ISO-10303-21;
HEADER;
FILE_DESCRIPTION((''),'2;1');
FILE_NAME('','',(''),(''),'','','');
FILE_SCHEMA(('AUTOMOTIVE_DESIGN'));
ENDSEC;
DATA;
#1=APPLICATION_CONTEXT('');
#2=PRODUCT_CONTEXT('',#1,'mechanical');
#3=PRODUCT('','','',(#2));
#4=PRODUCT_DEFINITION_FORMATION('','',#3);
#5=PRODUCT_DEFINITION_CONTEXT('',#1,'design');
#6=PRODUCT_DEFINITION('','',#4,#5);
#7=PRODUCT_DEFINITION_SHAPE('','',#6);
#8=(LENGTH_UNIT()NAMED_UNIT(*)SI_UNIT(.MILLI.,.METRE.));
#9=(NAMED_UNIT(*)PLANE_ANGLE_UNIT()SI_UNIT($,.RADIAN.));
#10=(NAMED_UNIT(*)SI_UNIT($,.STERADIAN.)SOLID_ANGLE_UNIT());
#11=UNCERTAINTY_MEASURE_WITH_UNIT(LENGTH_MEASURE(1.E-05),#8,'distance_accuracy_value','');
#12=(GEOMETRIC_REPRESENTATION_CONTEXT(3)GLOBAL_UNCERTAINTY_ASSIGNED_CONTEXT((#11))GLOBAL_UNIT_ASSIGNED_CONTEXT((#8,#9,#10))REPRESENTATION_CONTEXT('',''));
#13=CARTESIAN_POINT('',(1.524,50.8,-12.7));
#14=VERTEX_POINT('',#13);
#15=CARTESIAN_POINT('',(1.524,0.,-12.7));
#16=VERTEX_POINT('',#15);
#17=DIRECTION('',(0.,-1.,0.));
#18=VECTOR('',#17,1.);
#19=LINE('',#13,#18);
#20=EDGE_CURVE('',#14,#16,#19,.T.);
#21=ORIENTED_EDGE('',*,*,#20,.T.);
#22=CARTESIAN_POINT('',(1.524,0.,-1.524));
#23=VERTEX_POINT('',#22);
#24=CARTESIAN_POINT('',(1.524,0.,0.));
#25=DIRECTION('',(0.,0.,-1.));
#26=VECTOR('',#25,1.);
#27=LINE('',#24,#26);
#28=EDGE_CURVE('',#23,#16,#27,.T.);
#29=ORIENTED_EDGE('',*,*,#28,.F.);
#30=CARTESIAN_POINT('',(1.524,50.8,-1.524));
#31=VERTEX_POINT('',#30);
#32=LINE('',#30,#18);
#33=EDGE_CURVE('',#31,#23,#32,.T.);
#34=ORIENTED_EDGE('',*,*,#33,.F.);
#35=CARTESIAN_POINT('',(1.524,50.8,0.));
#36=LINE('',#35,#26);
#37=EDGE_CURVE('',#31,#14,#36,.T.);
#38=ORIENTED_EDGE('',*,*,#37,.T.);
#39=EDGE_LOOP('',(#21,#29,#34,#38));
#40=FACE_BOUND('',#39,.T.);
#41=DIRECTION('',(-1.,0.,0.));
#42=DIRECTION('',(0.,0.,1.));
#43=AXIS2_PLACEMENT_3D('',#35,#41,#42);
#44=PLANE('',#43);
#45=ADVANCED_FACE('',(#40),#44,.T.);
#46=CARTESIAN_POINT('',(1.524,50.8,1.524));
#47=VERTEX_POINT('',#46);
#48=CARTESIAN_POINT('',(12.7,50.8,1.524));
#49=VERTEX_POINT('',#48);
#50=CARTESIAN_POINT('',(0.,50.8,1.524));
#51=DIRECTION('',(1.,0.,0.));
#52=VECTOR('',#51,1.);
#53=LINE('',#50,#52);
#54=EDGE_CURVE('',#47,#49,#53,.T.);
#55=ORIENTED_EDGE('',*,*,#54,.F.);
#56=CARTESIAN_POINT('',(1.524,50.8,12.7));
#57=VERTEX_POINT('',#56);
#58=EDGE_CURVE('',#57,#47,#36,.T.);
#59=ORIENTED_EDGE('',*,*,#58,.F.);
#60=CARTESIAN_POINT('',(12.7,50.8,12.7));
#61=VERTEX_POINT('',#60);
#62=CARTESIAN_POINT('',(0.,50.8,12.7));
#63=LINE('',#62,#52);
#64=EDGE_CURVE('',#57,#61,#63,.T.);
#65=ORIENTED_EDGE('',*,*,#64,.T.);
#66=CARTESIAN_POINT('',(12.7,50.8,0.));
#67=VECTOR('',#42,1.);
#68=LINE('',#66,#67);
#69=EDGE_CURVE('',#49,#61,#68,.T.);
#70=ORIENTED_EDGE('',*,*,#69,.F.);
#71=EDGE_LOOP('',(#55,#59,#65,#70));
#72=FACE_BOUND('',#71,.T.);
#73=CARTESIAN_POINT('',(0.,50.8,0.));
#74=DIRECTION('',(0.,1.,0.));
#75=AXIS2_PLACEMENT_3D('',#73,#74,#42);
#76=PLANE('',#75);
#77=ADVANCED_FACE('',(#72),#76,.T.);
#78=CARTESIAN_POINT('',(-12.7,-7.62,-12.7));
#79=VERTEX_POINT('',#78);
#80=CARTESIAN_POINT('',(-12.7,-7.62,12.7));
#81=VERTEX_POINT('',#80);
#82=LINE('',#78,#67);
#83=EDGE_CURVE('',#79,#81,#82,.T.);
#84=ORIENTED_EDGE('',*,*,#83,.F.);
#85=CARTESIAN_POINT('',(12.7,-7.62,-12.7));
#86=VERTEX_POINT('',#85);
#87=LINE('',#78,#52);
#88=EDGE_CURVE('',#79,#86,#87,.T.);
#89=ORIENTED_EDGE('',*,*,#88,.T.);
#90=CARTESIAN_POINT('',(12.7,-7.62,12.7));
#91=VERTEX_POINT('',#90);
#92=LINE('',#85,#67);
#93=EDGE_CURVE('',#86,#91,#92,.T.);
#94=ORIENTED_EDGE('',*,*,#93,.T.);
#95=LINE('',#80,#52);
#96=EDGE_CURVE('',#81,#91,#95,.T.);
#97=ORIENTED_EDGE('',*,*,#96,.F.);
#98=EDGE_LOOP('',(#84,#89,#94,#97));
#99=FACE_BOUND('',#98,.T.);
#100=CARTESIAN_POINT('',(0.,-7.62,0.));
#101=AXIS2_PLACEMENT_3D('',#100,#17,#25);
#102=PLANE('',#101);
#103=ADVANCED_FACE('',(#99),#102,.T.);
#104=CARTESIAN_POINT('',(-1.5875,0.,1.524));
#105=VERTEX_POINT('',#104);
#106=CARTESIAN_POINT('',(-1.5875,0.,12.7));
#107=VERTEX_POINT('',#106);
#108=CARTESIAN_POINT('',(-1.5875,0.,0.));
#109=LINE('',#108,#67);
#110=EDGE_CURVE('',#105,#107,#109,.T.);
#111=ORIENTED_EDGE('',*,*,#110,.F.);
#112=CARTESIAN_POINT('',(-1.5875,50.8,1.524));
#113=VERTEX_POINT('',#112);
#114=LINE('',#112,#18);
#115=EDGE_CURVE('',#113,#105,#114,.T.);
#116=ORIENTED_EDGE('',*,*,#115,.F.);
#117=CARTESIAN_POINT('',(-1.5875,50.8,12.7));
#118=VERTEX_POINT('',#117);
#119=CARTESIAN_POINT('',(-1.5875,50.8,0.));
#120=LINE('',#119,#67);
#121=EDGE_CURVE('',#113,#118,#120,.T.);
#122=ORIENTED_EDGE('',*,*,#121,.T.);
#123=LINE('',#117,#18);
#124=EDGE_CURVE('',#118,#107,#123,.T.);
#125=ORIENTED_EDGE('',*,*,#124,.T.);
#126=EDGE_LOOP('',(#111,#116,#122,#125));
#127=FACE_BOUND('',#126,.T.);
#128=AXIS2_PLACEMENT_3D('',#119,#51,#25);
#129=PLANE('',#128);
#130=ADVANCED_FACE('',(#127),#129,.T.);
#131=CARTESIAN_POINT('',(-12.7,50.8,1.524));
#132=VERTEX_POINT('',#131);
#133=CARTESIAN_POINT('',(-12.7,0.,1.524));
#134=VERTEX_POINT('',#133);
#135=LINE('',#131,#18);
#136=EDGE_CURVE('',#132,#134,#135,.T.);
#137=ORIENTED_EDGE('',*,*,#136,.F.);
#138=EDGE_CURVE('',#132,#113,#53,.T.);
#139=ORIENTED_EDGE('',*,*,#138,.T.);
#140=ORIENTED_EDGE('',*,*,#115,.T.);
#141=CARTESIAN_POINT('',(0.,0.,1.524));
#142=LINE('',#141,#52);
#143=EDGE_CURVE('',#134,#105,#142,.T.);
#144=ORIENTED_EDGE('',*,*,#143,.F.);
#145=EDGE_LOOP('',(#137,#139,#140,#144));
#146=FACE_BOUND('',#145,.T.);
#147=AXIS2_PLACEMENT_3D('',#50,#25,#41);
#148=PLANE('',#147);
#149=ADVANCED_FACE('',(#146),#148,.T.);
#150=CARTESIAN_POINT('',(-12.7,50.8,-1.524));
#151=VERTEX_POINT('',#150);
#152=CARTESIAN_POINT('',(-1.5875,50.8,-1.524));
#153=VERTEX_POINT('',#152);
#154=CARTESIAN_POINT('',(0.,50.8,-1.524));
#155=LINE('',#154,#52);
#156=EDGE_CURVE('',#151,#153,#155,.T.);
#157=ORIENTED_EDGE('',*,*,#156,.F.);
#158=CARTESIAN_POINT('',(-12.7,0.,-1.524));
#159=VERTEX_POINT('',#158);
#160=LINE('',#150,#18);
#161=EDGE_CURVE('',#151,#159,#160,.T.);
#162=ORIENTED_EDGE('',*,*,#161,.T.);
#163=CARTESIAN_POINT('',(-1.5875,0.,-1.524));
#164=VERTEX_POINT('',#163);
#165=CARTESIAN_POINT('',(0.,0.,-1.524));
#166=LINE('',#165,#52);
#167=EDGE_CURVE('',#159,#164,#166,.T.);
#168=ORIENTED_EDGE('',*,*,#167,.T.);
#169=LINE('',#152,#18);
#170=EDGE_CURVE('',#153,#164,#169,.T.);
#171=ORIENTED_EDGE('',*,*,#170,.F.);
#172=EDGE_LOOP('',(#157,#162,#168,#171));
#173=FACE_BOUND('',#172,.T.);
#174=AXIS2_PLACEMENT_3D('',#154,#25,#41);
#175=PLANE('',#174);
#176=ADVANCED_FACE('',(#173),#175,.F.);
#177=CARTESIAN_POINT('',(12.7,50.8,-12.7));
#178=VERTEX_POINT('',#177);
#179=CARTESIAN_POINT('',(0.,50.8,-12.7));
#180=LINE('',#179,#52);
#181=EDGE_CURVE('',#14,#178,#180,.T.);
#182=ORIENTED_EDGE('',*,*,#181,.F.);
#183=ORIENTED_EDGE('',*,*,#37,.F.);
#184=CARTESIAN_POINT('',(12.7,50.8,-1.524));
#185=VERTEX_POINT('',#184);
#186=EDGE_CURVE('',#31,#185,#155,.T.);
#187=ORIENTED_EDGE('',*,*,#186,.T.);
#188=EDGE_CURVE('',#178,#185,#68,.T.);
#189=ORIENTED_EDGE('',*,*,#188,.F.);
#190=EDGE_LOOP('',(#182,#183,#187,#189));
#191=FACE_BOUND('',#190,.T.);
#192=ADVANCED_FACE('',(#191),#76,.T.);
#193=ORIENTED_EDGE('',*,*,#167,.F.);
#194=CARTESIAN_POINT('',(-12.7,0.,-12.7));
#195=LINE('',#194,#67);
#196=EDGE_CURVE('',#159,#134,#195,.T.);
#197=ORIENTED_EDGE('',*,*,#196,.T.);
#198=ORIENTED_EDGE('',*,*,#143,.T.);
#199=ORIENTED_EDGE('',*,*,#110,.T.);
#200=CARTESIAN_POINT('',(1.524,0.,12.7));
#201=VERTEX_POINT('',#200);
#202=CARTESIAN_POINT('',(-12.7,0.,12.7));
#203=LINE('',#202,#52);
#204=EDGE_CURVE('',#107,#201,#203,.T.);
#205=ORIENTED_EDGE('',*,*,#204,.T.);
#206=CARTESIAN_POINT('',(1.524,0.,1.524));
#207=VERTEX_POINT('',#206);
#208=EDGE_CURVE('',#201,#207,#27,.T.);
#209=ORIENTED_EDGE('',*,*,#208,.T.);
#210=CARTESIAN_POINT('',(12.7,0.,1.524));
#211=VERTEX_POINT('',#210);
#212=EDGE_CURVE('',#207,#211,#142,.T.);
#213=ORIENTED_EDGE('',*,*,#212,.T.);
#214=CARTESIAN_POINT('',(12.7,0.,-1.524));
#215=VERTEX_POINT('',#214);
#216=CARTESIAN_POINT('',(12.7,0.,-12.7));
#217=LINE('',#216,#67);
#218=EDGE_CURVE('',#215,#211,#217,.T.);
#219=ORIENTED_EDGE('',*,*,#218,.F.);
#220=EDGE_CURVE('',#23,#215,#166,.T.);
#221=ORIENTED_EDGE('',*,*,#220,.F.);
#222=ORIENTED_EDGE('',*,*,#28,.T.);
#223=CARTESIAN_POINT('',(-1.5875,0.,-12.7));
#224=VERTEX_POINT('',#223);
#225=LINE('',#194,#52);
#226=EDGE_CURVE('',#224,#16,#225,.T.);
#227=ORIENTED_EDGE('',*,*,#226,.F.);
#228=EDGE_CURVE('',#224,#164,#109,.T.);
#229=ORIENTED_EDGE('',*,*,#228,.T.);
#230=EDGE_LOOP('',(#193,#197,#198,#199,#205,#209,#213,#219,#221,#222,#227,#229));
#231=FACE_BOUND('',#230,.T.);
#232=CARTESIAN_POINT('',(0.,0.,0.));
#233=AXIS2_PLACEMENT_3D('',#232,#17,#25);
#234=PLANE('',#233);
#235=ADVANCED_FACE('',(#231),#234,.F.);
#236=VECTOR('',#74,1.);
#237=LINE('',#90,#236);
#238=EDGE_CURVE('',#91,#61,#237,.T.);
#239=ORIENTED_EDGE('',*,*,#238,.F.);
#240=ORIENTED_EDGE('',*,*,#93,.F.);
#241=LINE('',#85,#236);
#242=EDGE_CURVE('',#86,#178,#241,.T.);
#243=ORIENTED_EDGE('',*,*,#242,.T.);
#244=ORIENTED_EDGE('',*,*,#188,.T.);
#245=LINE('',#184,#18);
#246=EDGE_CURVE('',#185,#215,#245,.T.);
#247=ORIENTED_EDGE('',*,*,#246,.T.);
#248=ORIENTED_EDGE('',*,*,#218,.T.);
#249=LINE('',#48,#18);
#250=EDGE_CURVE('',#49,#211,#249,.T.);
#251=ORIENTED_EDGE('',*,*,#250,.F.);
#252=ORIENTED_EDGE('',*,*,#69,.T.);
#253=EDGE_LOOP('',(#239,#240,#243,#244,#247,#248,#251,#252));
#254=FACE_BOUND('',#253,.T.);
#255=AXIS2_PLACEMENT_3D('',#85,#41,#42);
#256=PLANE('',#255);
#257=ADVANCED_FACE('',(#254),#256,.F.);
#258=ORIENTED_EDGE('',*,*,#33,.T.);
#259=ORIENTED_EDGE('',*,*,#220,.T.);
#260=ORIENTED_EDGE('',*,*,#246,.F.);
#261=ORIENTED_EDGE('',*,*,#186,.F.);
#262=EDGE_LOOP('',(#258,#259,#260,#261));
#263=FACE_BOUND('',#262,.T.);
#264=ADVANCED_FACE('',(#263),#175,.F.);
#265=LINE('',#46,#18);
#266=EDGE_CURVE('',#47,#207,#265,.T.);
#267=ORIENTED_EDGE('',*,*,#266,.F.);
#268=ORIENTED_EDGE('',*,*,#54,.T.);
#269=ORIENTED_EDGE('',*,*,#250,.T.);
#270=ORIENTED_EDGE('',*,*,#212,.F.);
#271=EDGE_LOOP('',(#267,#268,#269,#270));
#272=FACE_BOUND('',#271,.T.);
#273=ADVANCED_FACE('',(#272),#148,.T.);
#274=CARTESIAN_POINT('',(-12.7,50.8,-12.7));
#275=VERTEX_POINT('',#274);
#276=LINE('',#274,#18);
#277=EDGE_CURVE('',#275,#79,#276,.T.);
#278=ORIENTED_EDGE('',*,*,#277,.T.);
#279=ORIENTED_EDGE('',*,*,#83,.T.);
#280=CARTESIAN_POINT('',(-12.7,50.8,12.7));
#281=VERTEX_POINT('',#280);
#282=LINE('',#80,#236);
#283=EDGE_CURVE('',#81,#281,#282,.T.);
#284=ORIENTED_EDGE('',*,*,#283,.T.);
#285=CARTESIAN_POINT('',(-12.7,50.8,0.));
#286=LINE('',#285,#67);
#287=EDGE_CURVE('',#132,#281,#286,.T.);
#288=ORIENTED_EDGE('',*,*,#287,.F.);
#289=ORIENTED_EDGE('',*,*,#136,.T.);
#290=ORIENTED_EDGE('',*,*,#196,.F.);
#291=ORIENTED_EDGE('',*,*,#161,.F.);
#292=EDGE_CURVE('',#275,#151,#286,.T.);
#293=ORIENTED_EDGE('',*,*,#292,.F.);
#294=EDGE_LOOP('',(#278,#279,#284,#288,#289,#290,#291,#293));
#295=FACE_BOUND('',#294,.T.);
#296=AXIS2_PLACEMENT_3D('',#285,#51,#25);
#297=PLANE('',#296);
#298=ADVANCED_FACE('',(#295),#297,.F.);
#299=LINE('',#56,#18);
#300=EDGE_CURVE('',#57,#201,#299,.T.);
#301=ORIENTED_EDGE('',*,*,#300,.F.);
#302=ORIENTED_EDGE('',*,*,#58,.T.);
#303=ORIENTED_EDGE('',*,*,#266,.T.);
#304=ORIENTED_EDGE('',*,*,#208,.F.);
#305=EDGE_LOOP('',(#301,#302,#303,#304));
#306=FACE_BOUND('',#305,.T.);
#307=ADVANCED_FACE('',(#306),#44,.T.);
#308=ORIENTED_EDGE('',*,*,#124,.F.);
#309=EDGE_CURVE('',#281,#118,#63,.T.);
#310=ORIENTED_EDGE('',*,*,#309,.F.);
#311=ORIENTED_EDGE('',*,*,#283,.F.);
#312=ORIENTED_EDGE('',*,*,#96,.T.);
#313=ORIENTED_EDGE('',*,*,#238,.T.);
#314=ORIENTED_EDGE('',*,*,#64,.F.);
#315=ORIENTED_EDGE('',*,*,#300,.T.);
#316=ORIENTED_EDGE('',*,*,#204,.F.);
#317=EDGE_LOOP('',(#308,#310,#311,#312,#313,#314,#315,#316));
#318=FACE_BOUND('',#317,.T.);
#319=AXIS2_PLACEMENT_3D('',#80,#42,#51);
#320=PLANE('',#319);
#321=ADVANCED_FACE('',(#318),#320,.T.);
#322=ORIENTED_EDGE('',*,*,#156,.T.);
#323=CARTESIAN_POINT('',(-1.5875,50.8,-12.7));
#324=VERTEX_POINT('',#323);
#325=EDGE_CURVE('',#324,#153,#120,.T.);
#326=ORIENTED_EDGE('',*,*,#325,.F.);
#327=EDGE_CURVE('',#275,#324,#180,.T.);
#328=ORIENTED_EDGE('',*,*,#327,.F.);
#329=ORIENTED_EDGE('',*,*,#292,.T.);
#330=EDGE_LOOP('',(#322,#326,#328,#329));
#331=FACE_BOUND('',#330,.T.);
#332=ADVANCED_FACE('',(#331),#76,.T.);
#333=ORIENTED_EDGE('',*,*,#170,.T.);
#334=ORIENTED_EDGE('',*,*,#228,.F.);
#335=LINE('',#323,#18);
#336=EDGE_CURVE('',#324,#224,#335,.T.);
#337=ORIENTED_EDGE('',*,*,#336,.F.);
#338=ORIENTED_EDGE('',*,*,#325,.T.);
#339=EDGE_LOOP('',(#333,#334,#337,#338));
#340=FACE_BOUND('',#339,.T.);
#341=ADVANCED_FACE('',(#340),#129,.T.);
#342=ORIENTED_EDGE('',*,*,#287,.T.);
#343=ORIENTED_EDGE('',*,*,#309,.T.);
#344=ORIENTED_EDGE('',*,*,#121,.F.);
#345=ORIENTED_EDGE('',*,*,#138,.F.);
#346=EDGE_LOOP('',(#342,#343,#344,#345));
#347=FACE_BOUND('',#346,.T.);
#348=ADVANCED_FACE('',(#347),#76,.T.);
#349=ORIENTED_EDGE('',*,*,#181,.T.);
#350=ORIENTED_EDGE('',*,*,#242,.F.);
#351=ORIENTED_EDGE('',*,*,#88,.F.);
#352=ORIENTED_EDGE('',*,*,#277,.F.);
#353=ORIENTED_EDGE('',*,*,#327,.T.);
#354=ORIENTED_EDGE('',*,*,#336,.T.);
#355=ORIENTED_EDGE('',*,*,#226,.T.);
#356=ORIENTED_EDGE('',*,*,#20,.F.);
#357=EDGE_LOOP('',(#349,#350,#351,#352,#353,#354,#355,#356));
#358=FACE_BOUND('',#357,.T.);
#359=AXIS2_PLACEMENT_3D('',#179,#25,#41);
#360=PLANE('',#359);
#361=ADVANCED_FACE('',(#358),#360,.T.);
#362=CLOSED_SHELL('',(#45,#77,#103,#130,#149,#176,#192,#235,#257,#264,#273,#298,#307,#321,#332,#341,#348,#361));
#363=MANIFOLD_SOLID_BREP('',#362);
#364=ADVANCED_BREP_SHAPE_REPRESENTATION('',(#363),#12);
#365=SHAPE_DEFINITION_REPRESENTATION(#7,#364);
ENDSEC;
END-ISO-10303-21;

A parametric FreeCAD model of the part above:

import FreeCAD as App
import Part
import Sketcher
Q = App.Units.Quantity


def add_polygon(sketch, points):
    """Adds a closed chain of lines whose ends are joined by coincident constraints."""
    first, n = sketch.GeometryCount, len(points)
    for a, b in zip(points, points[1:] + points[:1]):
        sketch.addGeometry(Part.LineSegment(App.Vector(*a, 0), App.Vector(*b, 0)), False)
    for i in range(n):
        sketch.addConstraint(Sketcher.Constraint("Coincident", first + i, 2, first + (i + 1) % n, 1))

doc = App.newDocument("Part")
body = doc.addObject("PartDesign::Body", "Body")

sketch1 = doc.addObject("Sketcher::SketchObject", "Sketch")
body.addObject(sketch1)
sketch1.AttachmentSupport = (doc.XZ_Plane, [""])
sketch1.MapMode = "FlatFace"
add_polygon(sketch1, [(-1.5875, -12.7), (-12.7, -12.7), (-12.7, -1.524), (-1.5875, -1.524)])
sketch1.addConstraint([
    Sketcher.Constraint("Horizontal", 0),
    Sketcher.Constraint("Vertical", 1),
    Sketcher.Constraint("Horizontal", 2),
    Sketcher.Constraint("Vertical", 3),
    Sketcher.Constraint("DistanceY", 1, 1, 1, 2, Q("0.44 in")),
    Sketcher.Constraint("DistanceX", 0, 2, -1, 1, Q("0.5 in")),
    Sketcher.Constraint("DistanceY", 0, 2, -1, 1, Q("0.5 in")),
    Sketcher.Constraint("DistanceX", 0, 2, 0, 1, Q("0.4375 in")),
])
pad1 = doc.addObject("PartDesign::Pad", "Pad")
body.addObject(pad1)
pad1.Profile = sketch1
pad1.Length = Q("2 in")
pad1.Reversed = True
body2 = doc.addObject("PartDesign::Body", "Body001")

sketch2 = doc.addObject("Sketcher::SketchObject", "Sketch001")
body2.addObject(sketch2)
sketch2.AttachmentSupport = (doc.getObject("XZ_Plane001"), [""])
sketch2.MapMode = "FlatFace"
add_polygon(sketch2, [(-12.7, 1.524), (-12.7, 12.7), (-1.5875, 12.7), (-1.5875, 1.524)])
sketch2.addConstraint([
    Sketcher.Constraint("Vertical", 0),
    Sketcher.Constraint("Horizontal", 1),
    Sketcher.Constraint("Vertical", 2),
    Sketcher.Constraint("Horizontal", 3),
    Sketcher.Constraint("DistanceY", 0, 1, 0, 2, Q("0.44 in")),
    Sketcher.Constraint("DistanceX", 0, 2, -1, 1, Q("0.5 in")),
    Sketcher.Constraint("DistanceY", -1, 1, 0, 2, Q("0.5 in")),
    Sketcher.Constraint("DistanceX", 1, 1, 1, 2, Q("0.4375 in")),
])
pad2 = doc.addObject("PartDesign::Pad", "Pad001")
body2.addObject(pad2)
pad2.Profile = sketch2
pad2.Length = Q("2 in")
pad2.Reversed = True
body3 = doc.addObject("PartDesign::Body", "Body002")

sketch3 = doc.addObject("Sketcher::SketchObject", "Sketch002")
body3.addObject(sketch3)
sketch3.AttachmentSupport = (doc.getObject("XZ_Plane002"), [""])
sketch3.MapMode = "FlatFace"
add_polygon(sketch3, [(1.524, -12.7), (1.524, -1.524), (12.7, -1.524), (12.7, -12.7)])
sketch3.addConstraint([
    Sketcher.Constraint("Vertical", 0),
    Sketcher.Constraint("Horizontal", 1),
    Sketcher.Constraint("Vertical", 2),
    Sketcher.Constraint("Horizontal", 3),
    Sketcher.Constraint("Equal", 3, 0),
    Sketcher.Constraint("DistanceX", 1, 1, 1, 2, Q("0.44 in")),
    Sketcher.Constraint("DistanceX", -1, 1, 1, 2, Q("0.5 in")),
    Sketcher.Constraint("DistanceY", 2, 2, -1, 1, Q("0.5 in")),
])
pad3 = doc.addObject("PartDesign::Pad", "Pad002")
body3.addObject(pad3)
pad3.Profile = sketch3
pad3.Length = Q("2 in")
pad3.Reversed = True
body4 = doc.addObject("PartDesign::Body", "Body003")

sketch4 = doc.addObject("Sketcher::SketchObject", "Sketch003")
body4.addObject(sketch4)
sketch4.AttachmentSupport = (doc.getObject("XZ_Plane003"), [""])
sketch4.MapMode = "FlatFace"
add_polygon(sketch4, [(1.524, 1.524), (1.524, 12.7), (12.7, 12.7), (12.7, 1.524)])
sketch4.addConstraint([
    Sketcher.Constraint("Vertical", 0),
    Sketcher.Constraint("Horizontal", 1),
    Sketcher.Constraint("Vertical", 2),
    Sketcher.Constraint("Horizontal", 3),
    Sketcher.Constraint("Equal", 3, 0),
    Sketcher.Constraint("DistanceX", 1, 1, 1, 2, Q("0.44 in")),
    Sketcher.Constraint("DistanceY", -1, 1, 0, 2, Q("0.5 in")),
    Sketcher.Constraint("DistanceX", -1, 1, 1, 2, Q("0.5 in")),
])
pad4 = doc.addObject("PartDesign::Pad", "Pad003")
body4.addObject(pad4)
pad4.Profile = sketch4
pad4.Length = Q("2 in")
pad4.Reversed = True
body.AllowCompound = True
doc.recompute()

boolean = doc.addObject("PartDesign::Boolean", "Boolean")
body.addObject(boolean)
boolean.Type = "Fuse"
boolean.addObjects([body2])
doc.recompute()

boolean2 = doc.addObject("PartDesign::Boolean", "Boolean001")
body.addObject(boolean2)
boolean2.Type = "Fuse"
boolean2.addObjects([body3])
doc.recompute()

boolean3 = doc.addObject("PartDesign::Boolean", "Boolean002")
body.addObject(boolean3)
boolean3.Type = "Fuse"
boolean3.addObjects([body4])

sketch5 = doc.addObject("Sketcher::SketchObject", "Sketch004")
body.addObject(sketch5)
sketch5.AttachmentSupport = (doc.XZ_Plane, [""])
sketch5.MapMode = "FlatFace"
add_polygon(sketch5, [(-12.7, -12.7), (-12.7, 12.7), (12.7, 12.7), (12.7, -12.7)])
sketch5.addConstraint([
    Sketcher.Constraint("Vertical", 0),
    Sketcher.Constraint("Horizontal", 1),
    Sketcher.Constraint("Vertical", 2),
    Sketcher.Constraint("Horizontal", 3),
    Sketcher.Constraint("Symmetric", 0, 2, 2, 2, -1, 1),
    Sketcher.Constraint("Equal", 3, 0),
    Sketcher.Constraint("DistanceX", 1, 1, 1, 2, Q("1 in")),
])
pad5 = doc.addObject("PartDesign::Pad", "Pad004")
body.addObject(pad5)
pad5.Profile = sketch5
pad5.Length = Q("0.3 in")

doc.recompute()
